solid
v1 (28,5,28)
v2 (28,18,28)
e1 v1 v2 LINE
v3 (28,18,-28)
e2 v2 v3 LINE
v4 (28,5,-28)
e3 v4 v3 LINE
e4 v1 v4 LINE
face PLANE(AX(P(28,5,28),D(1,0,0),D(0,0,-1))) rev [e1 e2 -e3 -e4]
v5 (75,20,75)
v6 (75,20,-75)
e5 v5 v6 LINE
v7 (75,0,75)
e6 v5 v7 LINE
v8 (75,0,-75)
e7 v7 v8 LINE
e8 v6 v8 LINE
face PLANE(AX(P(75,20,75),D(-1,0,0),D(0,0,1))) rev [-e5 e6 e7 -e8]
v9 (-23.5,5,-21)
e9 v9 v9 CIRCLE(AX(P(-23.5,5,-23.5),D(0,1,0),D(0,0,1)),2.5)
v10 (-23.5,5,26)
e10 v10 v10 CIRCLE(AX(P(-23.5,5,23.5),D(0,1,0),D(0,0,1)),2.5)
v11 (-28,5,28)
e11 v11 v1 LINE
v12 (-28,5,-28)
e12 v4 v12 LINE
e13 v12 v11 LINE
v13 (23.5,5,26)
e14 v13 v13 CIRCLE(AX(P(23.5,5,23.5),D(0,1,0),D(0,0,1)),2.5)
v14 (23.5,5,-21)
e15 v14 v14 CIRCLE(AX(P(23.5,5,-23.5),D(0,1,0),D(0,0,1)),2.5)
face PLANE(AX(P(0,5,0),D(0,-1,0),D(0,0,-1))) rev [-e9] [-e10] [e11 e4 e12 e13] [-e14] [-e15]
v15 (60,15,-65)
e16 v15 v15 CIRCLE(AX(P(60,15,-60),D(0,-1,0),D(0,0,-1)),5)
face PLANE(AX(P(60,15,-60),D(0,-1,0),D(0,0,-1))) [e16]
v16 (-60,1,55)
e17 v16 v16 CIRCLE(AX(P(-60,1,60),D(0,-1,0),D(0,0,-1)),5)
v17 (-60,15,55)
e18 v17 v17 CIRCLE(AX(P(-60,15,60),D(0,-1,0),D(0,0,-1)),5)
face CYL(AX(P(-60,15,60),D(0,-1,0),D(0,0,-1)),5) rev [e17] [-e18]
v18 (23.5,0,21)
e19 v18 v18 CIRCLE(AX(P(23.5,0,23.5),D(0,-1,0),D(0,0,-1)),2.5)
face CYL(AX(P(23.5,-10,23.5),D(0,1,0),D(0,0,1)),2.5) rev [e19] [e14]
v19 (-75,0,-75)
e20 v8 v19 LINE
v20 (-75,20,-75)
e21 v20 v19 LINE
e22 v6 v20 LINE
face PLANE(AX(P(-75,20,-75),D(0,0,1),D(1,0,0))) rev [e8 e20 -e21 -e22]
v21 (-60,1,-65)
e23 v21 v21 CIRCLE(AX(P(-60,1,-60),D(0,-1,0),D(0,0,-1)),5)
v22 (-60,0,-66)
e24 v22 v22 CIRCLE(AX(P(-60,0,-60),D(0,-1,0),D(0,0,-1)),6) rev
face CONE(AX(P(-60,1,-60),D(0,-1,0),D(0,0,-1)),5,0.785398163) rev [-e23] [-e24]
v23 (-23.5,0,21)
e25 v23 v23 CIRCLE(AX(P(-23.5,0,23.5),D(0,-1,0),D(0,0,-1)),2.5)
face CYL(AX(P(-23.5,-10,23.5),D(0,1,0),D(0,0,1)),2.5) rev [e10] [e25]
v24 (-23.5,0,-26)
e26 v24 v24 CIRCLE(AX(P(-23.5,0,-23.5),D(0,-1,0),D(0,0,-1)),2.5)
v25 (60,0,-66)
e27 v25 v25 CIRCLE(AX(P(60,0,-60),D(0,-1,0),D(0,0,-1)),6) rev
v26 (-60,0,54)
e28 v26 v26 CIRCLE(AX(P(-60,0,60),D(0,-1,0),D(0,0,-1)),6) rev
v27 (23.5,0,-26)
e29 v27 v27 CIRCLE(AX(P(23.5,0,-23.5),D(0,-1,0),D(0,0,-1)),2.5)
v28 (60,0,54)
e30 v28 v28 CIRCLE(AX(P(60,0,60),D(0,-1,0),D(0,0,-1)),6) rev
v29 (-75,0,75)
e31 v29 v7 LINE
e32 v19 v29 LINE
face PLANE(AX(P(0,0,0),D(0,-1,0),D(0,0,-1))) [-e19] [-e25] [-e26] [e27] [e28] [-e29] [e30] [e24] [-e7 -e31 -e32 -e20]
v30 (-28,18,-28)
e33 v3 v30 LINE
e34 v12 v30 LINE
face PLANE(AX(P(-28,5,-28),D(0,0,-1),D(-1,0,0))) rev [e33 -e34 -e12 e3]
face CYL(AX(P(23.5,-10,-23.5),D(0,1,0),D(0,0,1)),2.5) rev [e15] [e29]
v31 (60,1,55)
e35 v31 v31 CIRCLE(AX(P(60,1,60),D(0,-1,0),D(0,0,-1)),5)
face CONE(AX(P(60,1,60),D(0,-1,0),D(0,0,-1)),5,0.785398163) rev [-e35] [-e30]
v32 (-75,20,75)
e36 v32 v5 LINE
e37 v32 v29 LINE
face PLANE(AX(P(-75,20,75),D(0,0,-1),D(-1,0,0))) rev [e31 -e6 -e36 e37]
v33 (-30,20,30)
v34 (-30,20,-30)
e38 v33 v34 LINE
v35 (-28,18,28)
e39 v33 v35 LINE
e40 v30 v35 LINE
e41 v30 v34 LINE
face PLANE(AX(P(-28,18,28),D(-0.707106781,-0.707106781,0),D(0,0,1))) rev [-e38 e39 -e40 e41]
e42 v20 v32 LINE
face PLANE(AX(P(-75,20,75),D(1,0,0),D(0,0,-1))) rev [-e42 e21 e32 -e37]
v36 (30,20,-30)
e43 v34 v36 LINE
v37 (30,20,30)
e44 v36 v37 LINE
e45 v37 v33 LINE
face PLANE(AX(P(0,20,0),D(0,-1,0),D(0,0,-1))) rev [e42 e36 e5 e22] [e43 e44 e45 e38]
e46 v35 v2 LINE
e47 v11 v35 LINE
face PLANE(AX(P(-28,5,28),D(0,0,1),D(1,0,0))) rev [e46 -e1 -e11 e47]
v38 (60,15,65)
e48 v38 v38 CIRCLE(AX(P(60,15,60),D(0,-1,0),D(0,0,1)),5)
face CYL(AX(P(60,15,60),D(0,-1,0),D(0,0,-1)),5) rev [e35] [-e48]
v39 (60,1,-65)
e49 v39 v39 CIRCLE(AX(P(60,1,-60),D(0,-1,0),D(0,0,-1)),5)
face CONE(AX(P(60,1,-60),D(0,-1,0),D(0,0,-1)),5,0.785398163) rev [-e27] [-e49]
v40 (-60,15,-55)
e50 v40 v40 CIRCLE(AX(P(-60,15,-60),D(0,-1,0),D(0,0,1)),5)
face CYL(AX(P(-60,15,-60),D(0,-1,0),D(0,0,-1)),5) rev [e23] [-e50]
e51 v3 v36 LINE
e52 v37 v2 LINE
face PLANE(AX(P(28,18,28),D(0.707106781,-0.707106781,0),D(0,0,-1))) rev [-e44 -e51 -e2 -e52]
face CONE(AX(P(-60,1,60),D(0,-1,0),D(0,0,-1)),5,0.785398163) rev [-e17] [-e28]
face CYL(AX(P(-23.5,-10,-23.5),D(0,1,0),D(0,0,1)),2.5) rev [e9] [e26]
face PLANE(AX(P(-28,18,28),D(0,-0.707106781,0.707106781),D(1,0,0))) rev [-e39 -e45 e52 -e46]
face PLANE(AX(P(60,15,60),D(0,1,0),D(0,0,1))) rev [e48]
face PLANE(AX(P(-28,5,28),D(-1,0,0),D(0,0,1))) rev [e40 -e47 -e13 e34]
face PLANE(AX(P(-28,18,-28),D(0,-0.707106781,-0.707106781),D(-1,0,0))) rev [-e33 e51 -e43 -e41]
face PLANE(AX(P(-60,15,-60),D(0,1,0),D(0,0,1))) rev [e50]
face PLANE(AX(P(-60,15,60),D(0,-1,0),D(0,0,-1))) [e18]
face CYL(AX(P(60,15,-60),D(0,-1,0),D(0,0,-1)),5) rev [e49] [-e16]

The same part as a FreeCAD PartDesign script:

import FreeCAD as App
import Part
import Sketcher
from FreeCAD import Vector


def edges_at(feature, points):
    """Names of the edges that pass closest to the given points."""
    edges = feature.Shape.Edges
    near = lambda p: min(range(len(edges)), key=lambda i: edges[i].distToShape(Part.Vertex(*p))[0])
    return sorted({f"Edge{near(p) + 1}" for p in points})


def add_polygon(sketch, points):
    """Adds a closed chain of lines whose ends are joined by coincident constraints."""
    first, n = sketch.GeometryCount, len(points)
    for a, b in zip(points, points[1:] + points[:1]):
        sketch.addGeometry(Part.LineSegment(App.Vector(*a, 0), App.Vector(*b, 0)), False)
    for i in range(n):
        sketch.addConstraint(Sketcher.Constraint("Coincident", first + i, 2, first + (i + 1) % n, 1))

doc = App.newDocument("Part")
body = doc.addObject("PartDesign::Body", "Body")

sketch1 = body.newObject("Sketcher::SketchObject", "Sketch")
sketch1.AttachmentSupport = (doc.getObject("XZ_Plane"), [""])
sketch1.MapMode = "FlatFace"
add_polygon(sketch1, [(-75, -75), (-75, 75), (75, 75), (75, -75)])
sketch1.addConstraint([
    Sketcher.Constraint("Vertical", 0),
    Sketcher.Constraint("Horizontal", 1),
    Sketcher.Constraint("Vertical", 2),
    Sketcher.Constraint("Horizontal", 3),
    Sketcher.Constraint("Symmetric", 0, 2, 2, 2, -1, 1),
    Sketcher.Constraint("Equal", 3, 0),
    Sketcher.Constraint("DistanceX", 1, 1, 1, 2, 150.0),
])
pad1 = body.newObject("PartDesign::Pad", "Pad")
pad1.Profile = sketch1
pad1.Length = 20
pad1.Reversed = True

sketch2 = body.newObject("Sketcher::SketchObject", "Sketch001")
sketch2.AttachmentSupport = (doc.getObject("XZ_Plane"), [""])
sketch2.MapMode = "FlatFace"
sketch2.AttachmentOffset = App.Placement(Vector(0, 0, -20), App.Rotation())
add_polygon(sketch2, [(-28, -28), (-28, 28), (28, 28), (28, -28)])
sketch2.addConstraint([
    Sketcher.Constraint("Vertical", 0),
    Sketcher.Constraint("Horizontal", 1),
    Sketcher.Constraint("Vertical", 2),
    Sketcher.Constraint("Horizontal", 3),
    Sketcher.Constraint("Symmetric", 0, 2, 2, 2, -1, 1),
    Sketcher.Constraint("Equal", 3, 0),
    Sketcher.Constraint("DistanceX", 1, 1, 1, 2, 56.0),
])
pocket1 = body.newObject("PartDesign::Pocket", "Pocket")
pocket1.Profile = sketch2
pocket1.Length = 15
pocket1.Reversed = True

sketch3 = body.newObject("Sketcher::SketchObject", "Sketch002")
sketch3.AttachmentSupport = (doc.getObject("XZ_Plane"), [""])
sketch3.MapMode = "FlatFace"
sketch3.AttachmentOffset = App.Placement(Vector(0, 0, -5), App.Rotation())
sketch3.addGeometry([
    Part.Circle(Vector(23.5, -23.5, 0), Vector(0, 0, 1), 2.5),
    Part.Circle(Vector(-23.5, -23.5, 0), Vector(0, 0, 1), 2.5),
    Part.Circle(Vector(-23.5, 23.5, 0), Vector(0, 0, 1), 2.5),
    Part.Circle(Vector(23.5, 23.5, 0), Vector(0, 0, 1), 2.5),
], False)
sketch3.addConstraint([
    Sketcher.Constraint("Equal", 0, 1),
    Sketcher.Constraint("Equal", 1, 2),
    Sketcher.Constraint("Equal", 2, 3),
    Sketcher.Constraint("Symmetric", 0, 3, 2, 3, -1, 1),
    Sketcher.Constraint("Symmetric", 1, 3, 3, 3, -1, 1),
    Sketcher.Constraint("Symmetric", 0, 3, 1, 3, -2),
    Sketcher.Constraint("Diameter", 0, 5.0),
    Sketcher.Constraint("DistanceX", 1, 3, 0, 3, 47.0),
    Sketcher.Constraint("DistanceY", 1, 3, 2, 3, 47.0),
])
pocket2 = body.newObject("PartDesign::Pocket", "Pocket001")
pocket2.Profile = sketch3
pocket2.Length = 15
pocket2.Reversed = True
doc.recompute()

chamfer = body.newObject("PartDesign::Chamfer", "Chamfer")
chamfer.Base = (pocket2, edges_at(pocket2, [
    (28, 20, 0),
    (0, 20, -28),
    (-28, 20, 0),
    (0, 20, 28),
]))
chamfer.Size = 2

sketch4 = body.newObject("Sketcher::SketchObject", "Sketch003")
sketch4.AttachmentSupport = (doc.getObject("XZ_Plane"), [""])
sketch4.MapMode = "FlatFace"
sketch4.addGeometry([
    Part.Circle(Vector(-60, 60, 0), Vector(0, 0, 1), 5),
    Part.Circle(Vector(60, 60, 0), Vector(0, 0, 1), 5),
    Part.Circle(Vector(60, -60, 0), Vector(0, 0, 1), 5),
    Part.Circle(Vector(-60, -60, 0), Vector(0, 0, 1), 5),
], False)
sketch4.addConstraint([
    Sketcher.Constraint("Equal", 0, 1),
    Sketcher.Constraint("Equal", 1, 2),
    Sketcher.Constraint("Equal", 2, 3),
    Sketcher.Constraint("Symmetric", 0, 3, 2, 3, -1, 1),
    Sketcher.Constraint("Symmetric", 1, 3, 3, 3, -1, 1),
    Sketcher.Constraint("Symmetric", 0, 3, 1, 3, -2),
    Sketcher.Constraint("Diameter", 0, 10.0),
    Sketcher.Constraint("DistanceX", 0, 3, -1, 1, 60.0),
    Sketcher.Constraint("DistanceY", -1, 1, 0, 3, 60.0),
])
pocket3 = body.newObject("PartDesign::Pocket", "Pocket002")
pocket3.Profile = sketch4
pocket3.Length = 15
doc.recompute()

chamfer2 = body.newObject("PartDesign::Chamfer", "Chamfer001")
chamfer2.Base = (pocket3, edges_at(pocket3, [
    (-60, 0, 65),
    (60, 0, 55),
    (60, 0, -55),
    (-60, 0, -65),
]))
chamfer2.Size = 1

doc.recompute()
